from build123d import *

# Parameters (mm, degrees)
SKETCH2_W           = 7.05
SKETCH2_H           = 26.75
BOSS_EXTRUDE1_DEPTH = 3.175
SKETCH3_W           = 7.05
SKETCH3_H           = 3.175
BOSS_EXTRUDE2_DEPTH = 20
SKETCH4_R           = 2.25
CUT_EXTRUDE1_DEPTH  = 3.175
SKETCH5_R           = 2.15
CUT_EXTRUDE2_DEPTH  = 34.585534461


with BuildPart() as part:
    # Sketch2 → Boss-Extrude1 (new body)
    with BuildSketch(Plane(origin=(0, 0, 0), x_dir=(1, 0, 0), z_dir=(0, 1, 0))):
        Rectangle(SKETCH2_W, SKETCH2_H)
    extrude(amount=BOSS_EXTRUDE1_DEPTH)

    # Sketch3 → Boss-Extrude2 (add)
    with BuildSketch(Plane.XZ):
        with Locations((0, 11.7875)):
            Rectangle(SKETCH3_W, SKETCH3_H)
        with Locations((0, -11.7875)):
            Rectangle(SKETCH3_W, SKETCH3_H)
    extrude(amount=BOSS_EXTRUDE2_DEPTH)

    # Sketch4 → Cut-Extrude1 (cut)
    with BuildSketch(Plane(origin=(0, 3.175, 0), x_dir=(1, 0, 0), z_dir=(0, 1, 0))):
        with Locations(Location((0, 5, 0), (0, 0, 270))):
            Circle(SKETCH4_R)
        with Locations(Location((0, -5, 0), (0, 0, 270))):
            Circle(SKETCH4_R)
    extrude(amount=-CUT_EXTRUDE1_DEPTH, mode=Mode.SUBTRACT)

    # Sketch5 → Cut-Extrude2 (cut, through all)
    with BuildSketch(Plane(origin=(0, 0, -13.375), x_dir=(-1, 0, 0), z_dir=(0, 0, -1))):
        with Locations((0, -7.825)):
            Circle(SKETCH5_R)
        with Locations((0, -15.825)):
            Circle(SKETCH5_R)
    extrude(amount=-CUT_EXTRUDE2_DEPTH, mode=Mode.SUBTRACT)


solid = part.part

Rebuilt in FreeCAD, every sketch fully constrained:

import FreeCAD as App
import Part
import Sketcher

V = App.Vector


def add_polygon(sketch, points):
    """Adds a closed chain of lines whose ends are joined by coincident constraints."""
    first, n = sketch.GeometryCount, len(points)
    for a, b in zip(points, points[1:] + points[:1]):
        sketch.addGeometry(Part.LineSegment(App.Vector(*a, 0), App.Vector(*b, 0)), False)
    for i in range(n):
        sketch.addConstraint(Sketcher.Constraint("Coincident", first + i, 2, first + (i + 1) % n, 1))

doc = App.newDocument("Part")
params = doc.addObject("Spreadsheet::Sheet", "Params")
for row, (alias, value) in enumerate([
    ("sketch1_width", "7.05 mm"),
    ("sketch1_height", "26.75 mm"),
    ("pad1_length", "3.175 mm"),
    ("sketch2_width", "7.05 mm"),
    ("pad2_length", "20 mm"),
    ("sketch3_diameter", "4.5 mm"),
    ("pocket1_length", "3.175 mm"),
    ("sketch4_diameter", "4.3 mm"),
], start=1):
    params.set(f"A{row}", alias)
    params.set(f"B{row}", "=" + value)
    params.setAlias(f"B{row}", alias)

body = doc.addObject("PartDesign::Body", "Body")

# Sketch on XZ plane
sketch1 = body.newObject("Sketcher::SketchObject", "Sketch")
sketch1.AttachmentSupport = (doc.getObject("XZ_Plane"), [""])
sketch1.MapMode = "FlatFace"
add_polygon(sketch1, [(-4, -13), (-4, 13), (4, 13), (4, -13)])  # lines 0-3
sketch1.addConstraint([
    Sketcher.Constraint("Vertical", 0),
    Sketcher.Constraint("Horizontal", 1),
    Sketcher.Constraint("Vertical", 2),
    Sketcher.Constraint("Horizontal", 3),
    Sketcher.Constraint("Symmetric", 0, 2, 2, 2, -1, 1),
    Sketcher.Constraint("DistanceX", 1, 1, 1, 2, 7.05),
    Sketcher.Constraint("DistanceY", 0, 1, 0, 2, 26.75),
])
sketch1.setExpression("Constraints[9]", "Params.sketch1_width")
sketch1.setExpression("Constraints[10]", "Params.sketch1_height")
pad1 = body.newObject("PartDesign::Pad", "Pad")
pad1.Profile = sketch1
pad1.setExpression("Length", "Params.pad1_length")
pad1.Reversed = True

# Sketch on XZ plane
sketch2 = body.newObject("Sketcher::SketchObject", "Sketch001")
sketch2.AttachmentSupport = (doc.getObject("XZ_Plane"), [""])
sketch2.MapMode = "FlatFace"
add_polygon(sketch2, [(-3.5, 13.4), (-3.5, 10.2), (3.5, 10.2), (3.5, 13.4)])  # lines 0-3
add_polygon(sketch2, [(-3.5, -10.2), (-3.5, -13.4), (3.5, -13.4), (3.5, -10.2)])  # lines 4-7
sketch2.addConstraint([
    Sketcher.Constraint("Vertical", 0),
    Sketcher.Constraint("Horizontal", 1),
    Sketcher.Constraint("Vertical", 2),
    Sketcher.Constraint("Horizontal", 3),
    Sketcher.Constraint("Vertical", 4),
    Sketcher.Constraint("Horizontal", 5),
    Sketcher.Constraint("Vertical", 6),
    Sketcher.Constraint("Horizontal", 7),
    Sketcher.Constraint("Symmetric", 2, 2, 4, 2, -1, 1),
    Sketcher.Constraint("Symmetric", 0, 2, 6, 2, -1, 1),
    Sketcher.Constraint("Vertical", 3, 2, 4, 2),
    Sketcher.Constraint("DistanceX", 1, 1, 1, 2, 7.05),
    Sketcher.Constraint("DistanceY", -1, 1, 0, 2, 10.2),
    Sketcher.Constraint("DistanceY", 0, 2, 0, 1, 3.175),
])
sketch2.setExpression("Constraints[19]", "Params.sketch2_width")
pad2 = body.newObject("PartDesign::Pad", "Pad001")
pad2.Profile = sketch2
pad2.setExpression("Length", "Params.pad2_length")

# Sketch on XZ plane
sketch3 = body.newObject("Sketcher::SketchObject", "Sketch002")
sketch3.AttachmentSupport = (doc.getObject("XZ_Plane"), [""])
sketch3.MapMode = "FlatFace"
sketch3.AttachmentOffset = App.Placement(V(0, 0, -3.175), App.Rotation())
sketch3.addGeometry([
    Part.Circle(V(0, -5, 0), V(0, 0, 1), 2.2),
    Part.Circle(V(0, 5, 0), V(0, 0, 1), 2.2),
], False)
sketch3.addConstraint([
    Sketcher.Constraint("Equal", 0, 1),
    Sketcher.Constraint("Symmetric", 0, 3, 1, 3, -1, 1),
    Sketcher.Constraint("PointOnObject", 0, 3, -2),
    Sketcher.Constraint("Diameter", 0, 4.5),
    Sketcher.Constraint("DistanceY", 0, 3, -1, 1, 5.0),
])
sketch3.setExpression("Constraints[3]", "Params.sketch3_diameter")
pocket1 = body.newObject("PartDesign::Pocket", "Pocket")
pocket1.Profile = sketch3
pocket1.setExpression("Length", "Params.pocket1_length")
pocket1.Reversed = True

# Sketch on XY plane
sketch4 = body.newObject("Sketcher::SketchObject", "Sketch003")
sketch4.AttachmentSupport = (doc.getObject("XY_Plane"), [""])
sketch4.MapMode = "FlatFace"
sketch4.AttachmentOffset = App.Placement(V(0, 0, -13.375), App.Rotation())
sketch4.addGeometry([
    Part.Circle(V(0, -7.8, 0), V(0, 0, 1), 2.1),
    Part.Circle(V(0, -15.8, 0), V(0, 0, 1), 2.1),
], False)
sketch4.addConstraint([
    Sketcher.Constraint("Equal", 0, 1),
    Sketcher.Constraint("PointOnObject", 0, 3, -2),
    Sketcher.Constraint("PointOnObject", 1, 3, -2),
    Sketcher.Constraint("Diameter", 0, 4.3),
    Sketcher.Constraint("DistanceY", 1, 3, 0, 3, 8.0),
    Sketcher.Constraint("DistanceY", 0, 3, -1, 1, 7.825),
])
sketch4.setExpression("Constraints[3]", "Params.sketch4_diameter")
pocket2 = body.newObject("PartDesign::Pocket", "Pocket001")
pocket2.Profile = sketch4
pocket2.Type = "ThroughAll"
pocket2.Reversed = True

doc.recompute()
